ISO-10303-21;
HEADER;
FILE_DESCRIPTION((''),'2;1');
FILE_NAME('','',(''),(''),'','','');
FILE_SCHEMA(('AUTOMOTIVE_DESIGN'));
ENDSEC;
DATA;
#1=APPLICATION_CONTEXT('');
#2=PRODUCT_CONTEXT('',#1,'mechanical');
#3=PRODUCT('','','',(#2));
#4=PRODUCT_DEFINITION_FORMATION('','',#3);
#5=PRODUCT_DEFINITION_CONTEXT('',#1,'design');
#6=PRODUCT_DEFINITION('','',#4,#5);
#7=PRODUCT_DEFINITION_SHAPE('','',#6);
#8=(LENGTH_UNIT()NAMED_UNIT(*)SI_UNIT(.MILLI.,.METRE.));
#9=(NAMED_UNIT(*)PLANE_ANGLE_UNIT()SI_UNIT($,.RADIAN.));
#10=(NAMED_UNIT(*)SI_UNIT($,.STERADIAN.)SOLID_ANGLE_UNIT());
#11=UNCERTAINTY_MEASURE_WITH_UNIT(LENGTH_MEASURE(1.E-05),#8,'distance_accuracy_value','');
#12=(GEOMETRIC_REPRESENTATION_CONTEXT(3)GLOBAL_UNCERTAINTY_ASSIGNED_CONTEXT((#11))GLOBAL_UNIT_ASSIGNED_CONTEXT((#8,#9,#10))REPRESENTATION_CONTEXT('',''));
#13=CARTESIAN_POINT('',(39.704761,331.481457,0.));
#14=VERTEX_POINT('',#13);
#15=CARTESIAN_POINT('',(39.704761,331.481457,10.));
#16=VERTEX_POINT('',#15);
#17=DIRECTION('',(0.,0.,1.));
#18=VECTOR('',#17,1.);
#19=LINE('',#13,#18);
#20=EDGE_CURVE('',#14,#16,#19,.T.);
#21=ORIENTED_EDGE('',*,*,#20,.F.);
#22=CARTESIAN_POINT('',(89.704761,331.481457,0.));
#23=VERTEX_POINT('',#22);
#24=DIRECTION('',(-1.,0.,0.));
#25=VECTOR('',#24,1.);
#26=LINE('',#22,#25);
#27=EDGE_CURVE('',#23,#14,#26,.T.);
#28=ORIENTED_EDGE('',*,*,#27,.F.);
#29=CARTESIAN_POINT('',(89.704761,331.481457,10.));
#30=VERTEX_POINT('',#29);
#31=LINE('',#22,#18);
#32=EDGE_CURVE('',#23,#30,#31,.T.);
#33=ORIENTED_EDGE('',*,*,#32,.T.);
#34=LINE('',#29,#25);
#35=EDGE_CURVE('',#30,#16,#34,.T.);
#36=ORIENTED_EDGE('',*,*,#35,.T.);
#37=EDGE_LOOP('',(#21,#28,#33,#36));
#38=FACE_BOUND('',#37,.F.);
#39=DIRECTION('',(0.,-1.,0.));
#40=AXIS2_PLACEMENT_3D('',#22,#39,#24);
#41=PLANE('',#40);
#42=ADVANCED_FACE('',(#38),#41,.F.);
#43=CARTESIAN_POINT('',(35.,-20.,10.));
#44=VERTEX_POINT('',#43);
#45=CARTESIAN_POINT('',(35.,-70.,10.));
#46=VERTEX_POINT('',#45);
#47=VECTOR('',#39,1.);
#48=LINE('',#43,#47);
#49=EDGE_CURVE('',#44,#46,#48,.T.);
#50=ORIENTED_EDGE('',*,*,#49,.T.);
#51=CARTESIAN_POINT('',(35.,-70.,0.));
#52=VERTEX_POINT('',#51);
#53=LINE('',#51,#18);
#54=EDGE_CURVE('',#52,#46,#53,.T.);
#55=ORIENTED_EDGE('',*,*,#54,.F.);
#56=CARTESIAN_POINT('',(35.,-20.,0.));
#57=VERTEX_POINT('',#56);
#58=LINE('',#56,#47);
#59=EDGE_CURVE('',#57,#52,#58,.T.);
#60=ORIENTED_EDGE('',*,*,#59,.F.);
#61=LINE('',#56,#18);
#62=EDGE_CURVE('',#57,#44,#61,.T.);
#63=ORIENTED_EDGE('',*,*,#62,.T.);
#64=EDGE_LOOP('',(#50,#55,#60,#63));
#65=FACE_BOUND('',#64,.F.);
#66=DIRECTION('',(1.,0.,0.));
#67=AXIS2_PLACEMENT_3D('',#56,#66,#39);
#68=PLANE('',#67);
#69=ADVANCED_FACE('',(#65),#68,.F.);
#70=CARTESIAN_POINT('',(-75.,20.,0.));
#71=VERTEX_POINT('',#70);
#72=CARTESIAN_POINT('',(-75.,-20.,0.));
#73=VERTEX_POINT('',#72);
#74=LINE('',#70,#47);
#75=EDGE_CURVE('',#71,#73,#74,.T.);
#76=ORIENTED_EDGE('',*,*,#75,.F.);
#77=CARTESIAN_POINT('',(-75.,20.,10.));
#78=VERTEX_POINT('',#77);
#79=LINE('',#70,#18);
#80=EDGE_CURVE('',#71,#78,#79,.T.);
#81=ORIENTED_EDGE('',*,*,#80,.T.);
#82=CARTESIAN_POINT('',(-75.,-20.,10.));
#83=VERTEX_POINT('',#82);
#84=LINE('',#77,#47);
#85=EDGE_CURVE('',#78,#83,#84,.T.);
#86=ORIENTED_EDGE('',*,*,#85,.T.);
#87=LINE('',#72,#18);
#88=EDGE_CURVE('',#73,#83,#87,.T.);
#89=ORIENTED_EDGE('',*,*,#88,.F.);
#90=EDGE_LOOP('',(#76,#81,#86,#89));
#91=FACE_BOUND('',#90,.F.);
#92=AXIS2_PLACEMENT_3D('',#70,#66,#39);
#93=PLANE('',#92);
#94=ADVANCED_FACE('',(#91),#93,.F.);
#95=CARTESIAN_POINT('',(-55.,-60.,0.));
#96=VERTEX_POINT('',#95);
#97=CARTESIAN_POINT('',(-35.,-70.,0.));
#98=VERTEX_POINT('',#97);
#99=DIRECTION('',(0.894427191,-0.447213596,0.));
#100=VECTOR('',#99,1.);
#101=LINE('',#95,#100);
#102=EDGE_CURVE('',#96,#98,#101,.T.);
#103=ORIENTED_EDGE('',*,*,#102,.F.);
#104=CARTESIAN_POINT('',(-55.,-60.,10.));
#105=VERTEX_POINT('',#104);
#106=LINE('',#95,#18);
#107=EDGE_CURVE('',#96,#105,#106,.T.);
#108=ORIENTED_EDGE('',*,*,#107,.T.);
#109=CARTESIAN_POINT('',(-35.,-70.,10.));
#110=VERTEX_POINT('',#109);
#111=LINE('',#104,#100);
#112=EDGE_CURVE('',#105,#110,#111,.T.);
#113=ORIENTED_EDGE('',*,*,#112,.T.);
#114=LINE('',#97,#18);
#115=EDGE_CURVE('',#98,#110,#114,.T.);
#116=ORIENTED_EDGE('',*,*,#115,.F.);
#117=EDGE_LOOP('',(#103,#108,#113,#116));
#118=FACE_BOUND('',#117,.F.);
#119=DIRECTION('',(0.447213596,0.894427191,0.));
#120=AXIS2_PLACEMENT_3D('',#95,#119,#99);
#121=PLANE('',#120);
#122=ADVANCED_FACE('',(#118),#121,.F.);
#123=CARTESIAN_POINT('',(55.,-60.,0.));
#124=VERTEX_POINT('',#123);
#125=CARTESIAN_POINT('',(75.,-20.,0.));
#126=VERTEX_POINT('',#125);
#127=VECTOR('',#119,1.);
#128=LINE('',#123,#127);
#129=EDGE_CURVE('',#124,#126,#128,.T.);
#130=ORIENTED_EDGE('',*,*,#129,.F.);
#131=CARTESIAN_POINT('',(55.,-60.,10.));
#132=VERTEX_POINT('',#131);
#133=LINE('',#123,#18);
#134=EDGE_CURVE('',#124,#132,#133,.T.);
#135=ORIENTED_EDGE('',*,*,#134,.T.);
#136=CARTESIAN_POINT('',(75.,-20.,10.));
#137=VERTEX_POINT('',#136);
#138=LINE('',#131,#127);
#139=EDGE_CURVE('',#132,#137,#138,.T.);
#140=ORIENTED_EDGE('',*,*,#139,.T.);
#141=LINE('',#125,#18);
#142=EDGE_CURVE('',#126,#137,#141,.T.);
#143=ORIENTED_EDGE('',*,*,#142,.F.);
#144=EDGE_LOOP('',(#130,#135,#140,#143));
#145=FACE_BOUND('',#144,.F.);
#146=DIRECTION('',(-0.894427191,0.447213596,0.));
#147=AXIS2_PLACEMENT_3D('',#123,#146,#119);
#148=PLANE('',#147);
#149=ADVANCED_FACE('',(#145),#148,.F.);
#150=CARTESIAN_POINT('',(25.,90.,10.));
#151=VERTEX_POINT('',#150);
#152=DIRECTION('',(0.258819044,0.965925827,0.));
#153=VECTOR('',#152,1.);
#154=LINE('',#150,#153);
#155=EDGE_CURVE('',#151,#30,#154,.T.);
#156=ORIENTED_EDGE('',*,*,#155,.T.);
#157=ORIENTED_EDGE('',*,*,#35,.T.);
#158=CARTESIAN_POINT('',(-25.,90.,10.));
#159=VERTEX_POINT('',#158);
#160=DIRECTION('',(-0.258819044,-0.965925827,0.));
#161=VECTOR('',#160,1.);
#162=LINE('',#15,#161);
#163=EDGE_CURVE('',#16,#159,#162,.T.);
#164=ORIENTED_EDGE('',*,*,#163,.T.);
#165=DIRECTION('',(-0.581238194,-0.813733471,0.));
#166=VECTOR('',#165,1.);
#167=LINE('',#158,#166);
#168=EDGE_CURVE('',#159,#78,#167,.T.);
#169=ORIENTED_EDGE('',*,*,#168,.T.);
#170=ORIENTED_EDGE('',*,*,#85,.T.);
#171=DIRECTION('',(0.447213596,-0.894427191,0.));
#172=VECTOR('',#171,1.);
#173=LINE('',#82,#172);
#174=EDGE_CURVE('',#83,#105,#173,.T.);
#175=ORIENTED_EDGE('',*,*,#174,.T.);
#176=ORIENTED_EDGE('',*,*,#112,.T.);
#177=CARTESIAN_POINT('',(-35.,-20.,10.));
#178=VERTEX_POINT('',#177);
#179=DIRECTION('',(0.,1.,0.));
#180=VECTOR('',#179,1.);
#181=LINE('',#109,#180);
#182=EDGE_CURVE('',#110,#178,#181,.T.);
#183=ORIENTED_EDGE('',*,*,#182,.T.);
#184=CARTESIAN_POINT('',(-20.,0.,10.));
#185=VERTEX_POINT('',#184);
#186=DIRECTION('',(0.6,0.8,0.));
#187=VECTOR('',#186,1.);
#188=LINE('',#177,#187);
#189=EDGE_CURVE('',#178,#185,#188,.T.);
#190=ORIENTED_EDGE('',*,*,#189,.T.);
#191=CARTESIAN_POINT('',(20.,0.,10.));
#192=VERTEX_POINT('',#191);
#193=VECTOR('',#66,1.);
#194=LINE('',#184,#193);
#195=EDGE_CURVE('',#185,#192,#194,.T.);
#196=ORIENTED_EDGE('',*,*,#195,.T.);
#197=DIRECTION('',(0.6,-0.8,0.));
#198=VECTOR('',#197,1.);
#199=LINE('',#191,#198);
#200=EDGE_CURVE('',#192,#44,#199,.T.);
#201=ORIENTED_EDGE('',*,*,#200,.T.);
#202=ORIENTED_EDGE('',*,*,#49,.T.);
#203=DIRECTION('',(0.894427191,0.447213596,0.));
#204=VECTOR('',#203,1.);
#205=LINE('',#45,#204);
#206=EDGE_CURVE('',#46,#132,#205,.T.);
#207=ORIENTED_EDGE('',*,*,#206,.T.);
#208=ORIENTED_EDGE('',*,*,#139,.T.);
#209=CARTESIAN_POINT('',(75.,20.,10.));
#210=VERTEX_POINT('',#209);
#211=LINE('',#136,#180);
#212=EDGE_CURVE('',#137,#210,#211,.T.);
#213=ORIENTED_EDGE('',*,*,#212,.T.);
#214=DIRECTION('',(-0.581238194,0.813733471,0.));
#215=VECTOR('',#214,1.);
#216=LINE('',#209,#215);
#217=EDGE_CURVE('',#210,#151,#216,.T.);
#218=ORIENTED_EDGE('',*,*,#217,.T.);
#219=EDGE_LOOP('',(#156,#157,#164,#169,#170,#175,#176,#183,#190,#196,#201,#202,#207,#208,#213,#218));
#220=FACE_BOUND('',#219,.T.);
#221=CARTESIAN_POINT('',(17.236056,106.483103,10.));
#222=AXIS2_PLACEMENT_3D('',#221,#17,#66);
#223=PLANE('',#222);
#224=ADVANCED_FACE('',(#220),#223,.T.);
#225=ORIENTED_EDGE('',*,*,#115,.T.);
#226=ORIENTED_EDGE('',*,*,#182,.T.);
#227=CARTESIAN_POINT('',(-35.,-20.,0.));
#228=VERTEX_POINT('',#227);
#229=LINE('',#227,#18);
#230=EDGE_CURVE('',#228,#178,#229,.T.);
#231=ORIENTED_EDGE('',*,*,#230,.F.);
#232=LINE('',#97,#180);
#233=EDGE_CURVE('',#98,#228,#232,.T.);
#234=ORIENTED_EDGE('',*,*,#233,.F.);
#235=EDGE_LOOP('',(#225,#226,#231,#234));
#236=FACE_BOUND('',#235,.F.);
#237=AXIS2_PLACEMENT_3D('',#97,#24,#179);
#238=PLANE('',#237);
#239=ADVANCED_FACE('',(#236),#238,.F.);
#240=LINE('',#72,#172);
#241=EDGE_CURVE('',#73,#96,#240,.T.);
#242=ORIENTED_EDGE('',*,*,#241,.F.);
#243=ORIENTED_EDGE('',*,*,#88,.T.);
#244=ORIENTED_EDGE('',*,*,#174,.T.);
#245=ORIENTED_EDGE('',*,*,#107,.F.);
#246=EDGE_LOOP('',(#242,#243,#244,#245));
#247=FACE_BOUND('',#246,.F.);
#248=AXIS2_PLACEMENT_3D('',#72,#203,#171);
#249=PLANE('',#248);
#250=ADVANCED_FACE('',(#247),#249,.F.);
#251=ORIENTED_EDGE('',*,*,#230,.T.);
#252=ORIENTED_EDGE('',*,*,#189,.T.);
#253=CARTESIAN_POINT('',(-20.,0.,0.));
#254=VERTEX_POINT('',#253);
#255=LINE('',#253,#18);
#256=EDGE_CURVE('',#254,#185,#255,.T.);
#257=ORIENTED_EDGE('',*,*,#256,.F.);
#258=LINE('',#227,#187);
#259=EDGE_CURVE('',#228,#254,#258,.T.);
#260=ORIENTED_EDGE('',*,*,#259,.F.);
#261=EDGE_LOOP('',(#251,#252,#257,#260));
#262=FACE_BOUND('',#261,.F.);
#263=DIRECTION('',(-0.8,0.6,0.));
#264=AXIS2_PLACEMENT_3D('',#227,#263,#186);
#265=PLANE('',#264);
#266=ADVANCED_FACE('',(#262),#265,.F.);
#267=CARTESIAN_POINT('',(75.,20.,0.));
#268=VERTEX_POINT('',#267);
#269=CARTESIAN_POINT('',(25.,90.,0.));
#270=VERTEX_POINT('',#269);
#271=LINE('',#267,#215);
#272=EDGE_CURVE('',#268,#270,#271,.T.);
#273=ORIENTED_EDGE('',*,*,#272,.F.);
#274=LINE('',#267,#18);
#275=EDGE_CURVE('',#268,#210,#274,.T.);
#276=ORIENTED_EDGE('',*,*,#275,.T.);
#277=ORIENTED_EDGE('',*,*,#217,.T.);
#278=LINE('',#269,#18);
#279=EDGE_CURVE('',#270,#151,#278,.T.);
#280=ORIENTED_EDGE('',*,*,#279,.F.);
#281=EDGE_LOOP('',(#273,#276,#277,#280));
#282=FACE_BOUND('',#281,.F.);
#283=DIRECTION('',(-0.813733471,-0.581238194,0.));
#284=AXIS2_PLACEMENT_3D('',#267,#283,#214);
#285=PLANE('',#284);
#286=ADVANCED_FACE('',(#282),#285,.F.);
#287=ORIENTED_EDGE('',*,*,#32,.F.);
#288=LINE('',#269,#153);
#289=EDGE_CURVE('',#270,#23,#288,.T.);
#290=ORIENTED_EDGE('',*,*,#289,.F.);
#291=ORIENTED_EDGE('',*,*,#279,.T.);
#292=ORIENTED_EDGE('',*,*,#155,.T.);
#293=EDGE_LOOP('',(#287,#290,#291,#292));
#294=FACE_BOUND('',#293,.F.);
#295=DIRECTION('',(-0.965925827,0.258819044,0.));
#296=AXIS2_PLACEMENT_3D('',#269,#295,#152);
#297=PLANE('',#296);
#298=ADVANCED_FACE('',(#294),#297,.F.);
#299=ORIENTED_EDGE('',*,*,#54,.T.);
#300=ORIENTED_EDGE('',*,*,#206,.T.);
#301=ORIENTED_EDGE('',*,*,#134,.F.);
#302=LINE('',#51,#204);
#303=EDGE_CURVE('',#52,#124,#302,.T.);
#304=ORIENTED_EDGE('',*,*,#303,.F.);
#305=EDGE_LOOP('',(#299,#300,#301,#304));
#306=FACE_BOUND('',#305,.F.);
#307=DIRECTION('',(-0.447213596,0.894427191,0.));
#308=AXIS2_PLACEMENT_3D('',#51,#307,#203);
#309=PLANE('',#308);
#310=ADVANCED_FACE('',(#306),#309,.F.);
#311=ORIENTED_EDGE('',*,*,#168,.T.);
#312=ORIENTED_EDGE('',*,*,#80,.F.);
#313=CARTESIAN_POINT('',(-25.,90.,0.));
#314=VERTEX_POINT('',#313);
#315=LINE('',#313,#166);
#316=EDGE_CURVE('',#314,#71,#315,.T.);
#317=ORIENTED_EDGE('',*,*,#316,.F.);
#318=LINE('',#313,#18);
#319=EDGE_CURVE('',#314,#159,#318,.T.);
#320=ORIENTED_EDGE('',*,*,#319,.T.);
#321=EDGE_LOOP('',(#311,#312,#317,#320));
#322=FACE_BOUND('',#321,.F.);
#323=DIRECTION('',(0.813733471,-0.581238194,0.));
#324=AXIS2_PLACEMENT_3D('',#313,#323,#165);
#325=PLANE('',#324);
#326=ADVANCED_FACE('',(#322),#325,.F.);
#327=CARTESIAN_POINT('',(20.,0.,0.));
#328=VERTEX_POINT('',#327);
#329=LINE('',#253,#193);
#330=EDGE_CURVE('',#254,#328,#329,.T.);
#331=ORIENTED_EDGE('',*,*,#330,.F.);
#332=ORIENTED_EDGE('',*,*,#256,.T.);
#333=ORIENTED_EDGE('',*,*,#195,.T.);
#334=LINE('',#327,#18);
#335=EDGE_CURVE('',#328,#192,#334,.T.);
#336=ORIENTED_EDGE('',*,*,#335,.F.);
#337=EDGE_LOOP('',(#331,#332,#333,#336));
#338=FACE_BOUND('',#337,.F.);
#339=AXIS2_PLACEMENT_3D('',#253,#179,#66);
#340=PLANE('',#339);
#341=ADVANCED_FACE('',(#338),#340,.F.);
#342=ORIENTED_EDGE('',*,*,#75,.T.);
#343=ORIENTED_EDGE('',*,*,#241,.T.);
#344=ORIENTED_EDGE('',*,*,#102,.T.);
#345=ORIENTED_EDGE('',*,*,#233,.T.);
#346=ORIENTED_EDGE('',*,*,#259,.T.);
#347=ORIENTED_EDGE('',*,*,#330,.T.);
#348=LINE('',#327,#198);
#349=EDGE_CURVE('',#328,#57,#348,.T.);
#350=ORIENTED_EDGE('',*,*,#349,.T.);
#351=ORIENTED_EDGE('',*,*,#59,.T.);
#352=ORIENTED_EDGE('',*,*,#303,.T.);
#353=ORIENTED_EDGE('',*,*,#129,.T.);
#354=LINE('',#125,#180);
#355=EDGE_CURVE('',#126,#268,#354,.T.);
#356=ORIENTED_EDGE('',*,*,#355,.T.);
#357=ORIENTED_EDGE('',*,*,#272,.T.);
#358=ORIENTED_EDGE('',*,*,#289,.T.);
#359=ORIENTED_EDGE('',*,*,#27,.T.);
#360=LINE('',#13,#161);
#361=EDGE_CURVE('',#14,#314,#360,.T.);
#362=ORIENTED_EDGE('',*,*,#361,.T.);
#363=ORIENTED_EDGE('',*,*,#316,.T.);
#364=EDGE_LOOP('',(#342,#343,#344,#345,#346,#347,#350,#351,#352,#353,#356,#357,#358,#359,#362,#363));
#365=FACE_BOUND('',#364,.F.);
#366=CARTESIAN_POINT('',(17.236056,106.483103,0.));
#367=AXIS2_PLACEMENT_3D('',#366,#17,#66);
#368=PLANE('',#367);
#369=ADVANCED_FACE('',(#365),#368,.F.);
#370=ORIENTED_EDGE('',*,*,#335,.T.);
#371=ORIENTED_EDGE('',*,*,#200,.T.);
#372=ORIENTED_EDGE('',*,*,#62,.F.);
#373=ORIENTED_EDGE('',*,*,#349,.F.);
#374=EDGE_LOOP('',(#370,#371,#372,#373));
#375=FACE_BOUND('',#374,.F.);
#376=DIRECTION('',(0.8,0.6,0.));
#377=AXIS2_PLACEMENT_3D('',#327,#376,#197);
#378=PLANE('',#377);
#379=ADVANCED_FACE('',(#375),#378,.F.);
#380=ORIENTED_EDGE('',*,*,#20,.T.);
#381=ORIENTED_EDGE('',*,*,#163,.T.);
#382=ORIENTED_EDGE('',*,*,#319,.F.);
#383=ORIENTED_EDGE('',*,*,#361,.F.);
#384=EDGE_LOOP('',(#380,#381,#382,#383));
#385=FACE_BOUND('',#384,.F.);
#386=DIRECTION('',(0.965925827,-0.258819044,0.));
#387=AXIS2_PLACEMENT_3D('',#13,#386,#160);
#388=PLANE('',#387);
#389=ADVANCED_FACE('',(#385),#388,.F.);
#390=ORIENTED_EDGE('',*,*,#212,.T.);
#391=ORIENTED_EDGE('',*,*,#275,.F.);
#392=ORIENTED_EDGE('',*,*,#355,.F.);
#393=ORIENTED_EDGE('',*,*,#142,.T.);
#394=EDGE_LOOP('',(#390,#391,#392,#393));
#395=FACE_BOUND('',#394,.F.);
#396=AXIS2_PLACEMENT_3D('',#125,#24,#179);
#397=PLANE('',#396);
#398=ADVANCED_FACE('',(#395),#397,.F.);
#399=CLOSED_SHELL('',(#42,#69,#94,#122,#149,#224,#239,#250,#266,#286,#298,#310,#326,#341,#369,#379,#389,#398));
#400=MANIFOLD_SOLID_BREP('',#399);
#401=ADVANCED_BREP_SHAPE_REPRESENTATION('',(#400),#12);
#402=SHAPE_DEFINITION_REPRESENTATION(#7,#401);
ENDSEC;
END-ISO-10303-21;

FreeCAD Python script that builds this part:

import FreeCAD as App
import Part
import Sketcher

V = App.Vector
Q = App.Units.Quantity

doc = App.newDocument("Part")
params = doc.addObject("Spreadsheet::Sheet", "Params")
for row, (alias, value) in enumerate([
    ("sketch1_width", "40 mm"),
    ("sketch1_width2", "50 mm"),
    ("sketch1_length", "25 mm"),
    ("sketch1_length2", "250 mm"),
    ("pad1_length", "10 mm"),
], start=1):
    params.set(f"A{row}", alias)
    params.set(f"B{row}", "=" + value)
    params.setAlias(f"B{row}", alias)

body = doc.addObject("PartDesign::Body", "Body")

# Sketch on XY plane
sketch1 = doc.addObject("Sketcher::SketchObject", "Sketch")
body.addObject(sketch1)
sketch1.AttachmentSupport = (doc.XY_Plane, [""])
sketch1.MapMode = "FlatFace"
sketch1.addGeometry([
    Part.LineSegment(V(-35, -20, 0), V(-20, 0, 0)),  # 0
    Part.LineSegment(V(-20, 0, 0), V(20, 0, 0)),  # 1
    Part.LineSegment(V(20, 0, 0), V(35, -20, 0)),  # 2
    Part.LineSegment(V(35, -20, 0), V(35, -70, 0)),  # 3
    Part.LineSegment(V(35, -70, 0), V(55, -60, 0)),  # 4
    Part.LineSegment(V(55, -60, 0), V(75, -20, 0)),  # 5
    Part.LineSegment(V(75, -20, 0), V(75, 20, 0)),  # 6
    Part.LineSegment(V(75, 20, 0), V(25, 90, 0)),  # 7
    Part.LineSegment(V(25, 90, 0), V(89.704761, 331.481457, 0)),  # 8
    Part.LineSegment(V(89.704761, 331.481457, 0), V(39.704761, 331.481457, 0)),  # 9
    Part.LineSegment(V(39.704761, 331.481457, 0), V(-25, 90, 0)),  # 10
    Part.LineSegment(V(-25, 90, 0), V(-75, 20, 0)),  # 11
    Part.LineSegment(V(-75, 20, 0), V(-75, -20, 0)),  # 12
    Part.LineSegment(V(-75, -20, 0), V(-55, -60, 0)),  # 13
    Part.LineSegment(V(-55, -60, 0), V(-35, -70, 0)),  # 14
    Part.LineSegment(V(-35, -70, 0), V(-35, -20, 0)),  # 15
], False)
sketch1.addConstraint([
    Sketcher.Constraint("Coincident", 0, 2, 1, 1),
    Sketcher.Constraint("Coincident", 1, 2, 2, 1),
    Sketcher.Constraint("Coincident", 2, 2, 3, 1),
    Sketcher.Constraint("Coincident", 3, 2, 4, 1),
    Sketcher.Constraint("Coincident", 4, 2, 5, 1),
    Sketcher.Constraint("Coincident", 5, 2, 6, 1),
    Sketcher.Constraint("Coincident", 6, 2, 7, 1),
    Sketcher.Constraint("Coincident", 7, 2, 8, 1),
    Sketcher.Constraint("Coincident", 8, 2, 9, 1),
    Sketcher.Constraint("Coincident", 9, 2, 10, 1),
    Sketcher.Constraint("Coincident", 10, 2, 11, 1),
    Sketcher.Constraint("Coincident", 11, 2, 12, 1),
    Sketcher.Constraint("Coincident", 12, 2, 13, 1),
    Sketcher.Constraint("Coincident", 13, 2, 14, 1),
    Sketcher.Constraint("Coincident", 14, 2, 15, 1),
    Sketcher.Constraint("Coincident", 15, 2, 0, 1),
    Sketcher.Constraint("Horizontal", 1),
    Sketcher.Constraint("Vertical", 3),
    Sketcher.Constraint("Vertical", 6),
    Sketcher.Constraint("Horizontal", 9),
    Sketcher.Constraint("Vertical", 12),
    Sketcher.Constraint("Vertical", 15),
    Sketcher.Constraint("Symmetric", 0, 2, 1, 2, -1, 1),
    Sketcher.Constraint("Symmetric", 5, 2, 11, 2, -1, 1),
    Sketcher.Constraint("Symmetric", 7, 2, 10, 2, -2),
    Sketcher.Constraint("Symmetric", 4, 2, 13, 2, -2),
    Sketcher.Constraint("Symmetric", 3, 2, 14, 2, -2),
    Sketcher.Constraint("Parallel", 8, 10),
    Sketcher.Constraint("Perpendicular", 4, 13),
    Sketcher.Constraint("Perpendicular", 5, 14),
    Sketcher.Constraint("Horizontal", 2, 2, 5, 2),
    Sketcher.Constraint("Horizontal", 6, 2, 11, 2),
    Sketcher.Constraint("Horizontal", 12, 2, 15, 2),
    Sketcher.Constraint("Equal", 9, 3),
    Sketcher.Constraint("Equal", 1, 6),
    Sketcher.Constraint("DistanceX", 1, 1, 1, 2, 40.0),
    Sketcher.Constraint("DistanceX", 9, 2, 9, 1, 50.0),
    Sketcher.Constraint("Angle", 8, Q("75 deg")),
    Sketcher.Constraint("Distance", 0, 25.0),
    Sketcher.Constraint("Distance", 8, 250.0),
    Sketcher.Constraint("DistanceX", -1, 1, 4, 2, 55.0),
    Sketcher.Constraint("DistanceY", 4, 2, -1, 1, 60.0),
    Sketcher.Constraint("DistanceY", -1, 1, 7, 2, 90.0),
])
sketch1.setExpression("Constraints[35]", "Params.sketch1_width")
sketch1.setExpression("Constraints[36]", "Params.sketch1_width2")
sketch1.setExpression("Constraints[38]", "Params.sketch1_length")
sketch1.setExpression("Constraints[39]", "Params.sketch1_length2")
pad1 = doc.addObject("PartDesign::Pad", "Pad")
body.addObject(pad1)
pad1.Profile = sketch1
pad1.setExpression("Length", "Params.pad1_length")

doc.recompute()
